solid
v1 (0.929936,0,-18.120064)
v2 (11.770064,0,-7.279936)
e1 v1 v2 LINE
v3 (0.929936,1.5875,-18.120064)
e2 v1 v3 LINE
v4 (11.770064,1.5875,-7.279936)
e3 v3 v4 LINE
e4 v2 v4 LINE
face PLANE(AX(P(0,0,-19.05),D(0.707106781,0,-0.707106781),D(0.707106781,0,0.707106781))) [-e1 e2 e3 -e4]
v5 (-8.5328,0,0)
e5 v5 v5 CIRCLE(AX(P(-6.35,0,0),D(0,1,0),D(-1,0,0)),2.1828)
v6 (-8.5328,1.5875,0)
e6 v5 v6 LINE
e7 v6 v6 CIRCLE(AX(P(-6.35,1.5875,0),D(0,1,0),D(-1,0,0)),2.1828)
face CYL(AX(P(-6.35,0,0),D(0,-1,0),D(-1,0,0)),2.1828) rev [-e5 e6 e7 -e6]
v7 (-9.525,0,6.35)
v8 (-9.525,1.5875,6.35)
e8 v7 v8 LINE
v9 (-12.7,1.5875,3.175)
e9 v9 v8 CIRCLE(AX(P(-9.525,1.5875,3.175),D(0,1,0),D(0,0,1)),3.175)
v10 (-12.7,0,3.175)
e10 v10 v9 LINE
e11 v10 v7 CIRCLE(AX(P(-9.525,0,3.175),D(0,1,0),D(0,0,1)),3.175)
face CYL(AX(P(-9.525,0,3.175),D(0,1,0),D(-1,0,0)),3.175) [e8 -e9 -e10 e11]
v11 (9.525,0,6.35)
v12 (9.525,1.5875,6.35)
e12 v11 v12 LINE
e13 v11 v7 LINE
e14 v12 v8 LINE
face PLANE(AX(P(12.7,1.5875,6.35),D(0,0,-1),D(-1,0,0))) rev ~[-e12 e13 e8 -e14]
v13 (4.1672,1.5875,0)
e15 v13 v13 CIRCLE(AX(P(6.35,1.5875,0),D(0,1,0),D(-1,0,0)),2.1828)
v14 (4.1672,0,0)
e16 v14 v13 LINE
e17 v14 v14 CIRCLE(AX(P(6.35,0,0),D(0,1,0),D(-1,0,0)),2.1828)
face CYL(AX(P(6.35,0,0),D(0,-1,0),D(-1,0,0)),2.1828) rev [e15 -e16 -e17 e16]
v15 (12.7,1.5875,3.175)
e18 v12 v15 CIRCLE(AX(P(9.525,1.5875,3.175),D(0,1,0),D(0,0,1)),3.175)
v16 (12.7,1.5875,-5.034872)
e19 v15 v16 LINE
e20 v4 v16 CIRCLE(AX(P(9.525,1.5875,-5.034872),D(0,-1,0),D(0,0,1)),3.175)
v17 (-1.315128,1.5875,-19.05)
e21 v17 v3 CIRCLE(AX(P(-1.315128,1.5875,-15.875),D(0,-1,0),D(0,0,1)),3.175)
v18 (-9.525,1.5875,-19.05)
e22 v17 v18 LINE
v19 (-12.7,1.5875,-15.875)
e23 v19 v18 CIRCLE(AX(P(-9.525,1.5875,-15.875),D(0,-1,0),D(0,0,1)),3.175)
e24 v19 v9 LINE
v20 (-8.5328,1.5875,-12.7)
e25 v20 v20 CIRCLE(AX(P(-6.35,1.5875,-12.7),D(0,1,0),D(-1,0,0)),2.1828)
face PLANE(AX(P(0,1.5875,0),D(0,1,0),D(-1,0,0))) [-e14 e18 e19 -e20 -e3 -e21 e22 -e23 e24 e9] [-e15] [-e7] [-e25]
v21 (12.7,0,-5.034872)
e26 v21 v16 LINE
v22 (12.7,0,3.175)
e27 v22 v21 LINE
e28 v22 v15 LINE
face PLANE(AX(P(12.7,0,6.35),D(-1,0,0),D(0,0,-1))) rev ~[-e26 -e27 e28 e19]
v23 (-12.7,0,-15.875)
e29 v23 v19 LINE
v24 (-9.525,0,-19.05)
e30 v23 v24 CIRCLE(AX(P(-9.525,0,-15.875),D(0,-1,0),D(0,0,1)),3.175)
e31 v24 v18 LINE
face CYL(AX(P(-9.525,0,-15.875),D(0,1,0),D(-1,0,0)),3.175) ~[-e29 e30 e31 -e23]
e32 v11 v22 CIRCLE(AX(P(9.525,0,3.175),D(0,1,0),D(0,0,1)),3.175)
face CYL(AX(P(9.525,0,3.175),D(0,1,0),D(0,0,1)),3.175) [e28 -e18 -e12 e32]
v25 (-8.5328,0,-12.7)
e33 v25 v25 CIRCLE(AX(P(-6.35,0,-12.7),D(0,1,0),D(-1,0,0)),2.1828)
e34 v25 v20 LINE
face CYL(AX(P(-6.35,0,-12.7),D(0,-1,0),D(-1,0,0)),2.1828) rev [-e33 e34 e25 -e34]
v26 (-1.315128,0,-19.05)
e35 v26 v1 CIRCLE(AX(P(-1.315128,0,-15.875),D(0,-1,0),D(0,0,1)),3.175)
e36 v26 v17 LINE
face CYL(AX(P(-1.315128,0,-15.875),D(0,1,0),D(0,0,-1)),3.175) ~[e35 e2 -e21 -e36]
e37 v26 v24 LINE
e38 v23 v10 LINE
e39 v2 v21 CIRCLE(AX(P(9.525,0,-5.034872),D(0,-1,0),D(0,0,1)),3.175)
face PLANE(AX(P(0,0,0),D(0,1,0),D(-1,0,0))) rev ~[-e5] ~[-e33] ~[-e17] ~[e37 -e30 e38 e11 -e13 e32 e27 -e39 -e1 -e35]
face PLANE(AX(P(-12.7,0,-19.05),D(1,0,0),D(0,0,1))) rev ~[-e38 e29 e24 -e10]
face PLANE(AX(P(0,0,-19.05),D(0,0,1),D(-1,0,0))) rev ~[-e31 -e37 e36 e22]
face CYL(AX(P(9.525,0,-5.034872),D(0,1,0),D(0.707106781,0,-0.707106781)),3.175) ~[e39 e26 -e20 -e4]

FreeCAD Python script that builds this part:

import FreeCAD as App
import Part
import Sketcher
Q = App.Units.Quantity


def edges_at(feature, points):
    """Names of the edges that pass closest to the given points."""
    edges = feature.Shape.Edges
    near = lambda p: min(range(len(edges)), key=lambda i: edges[i].distToShape(Part.Vertex(*p))[0])
    return sorted({f"Edge{near(p) + 1}" for p in points})


def add_polygon(sketch, points):
    """Adds a closed chain of lines whose ends are joined by coincident constraints."""
    first, n = sketch.GeometryCount, len(points)
    for a, b in zip(points, points[1:] + points[:1]):
        sketch.addGeometry(Part.LineSegment(App.Vector(*a, 0), App.Vector(*b, 0)), False)
    for i in range(n):
        sketch.addConstraint(Sketcher.Constraint("Coincident", first + i, 2, first + (i + 1) % n, 1))

doc = App.newDocument("Part")
body = doc.addObject("PartDesign::Body", "Body")

# Sketch on XZ plane
sketch1 = body.newObject("Sketcher::SketchObject", "Sketch")
sketch1.AttachmentSupport = (doc.getObject("XZ_Plane"), [""])
sketch1.MapMode = "FlatFace"
add_polygon(sketch1, [(-12.7, 19.1), (0, 19.1), (12.7, 6.3), (12.7, -6.3), (0, -19.1), (-12.7, -19.1)])  # lines 0-5
sketch1.addGeometry(Part.Circle(App.Vector(-6.3, -12.7, 0), App.Vector(0, 0, 1), 2.2), False)  # 6
sketch1.addGeometry(Part.Circle(App.Vector(-6.3, 0, 0), App.Vector(0, 0, 1), 2.2), False)  # 7
sketch1.addGeometry(Part.Circle(App.Vector(-6.3, 12.7, 0), App.Vector(0, 0, 1), 2.2), False)  # 8
sketch1.addGeometry(Part.Circle(App.Vector(6.3, 0, 0), App.Vector(0, 0, 1), 2.2), False)  # 9
sketch1.addConstraint([
    Sketcher.Constraint("Horizontal", 0),
    Sketcher.Constraint("Vertical", 2),
    Sketcher.Constraint("Horizontal", 4),
    Sketcher.Constraint("Vertical", 5),
    Sketcher.Constraint("Equal", 6, 7),
    Sketcher.Constraint("Equal", 7, 8),
    Sketcher.Constraint("Equal", 8, 9),
    Sketcher.Constraint("Symmetric", 7, 3, 9, 3, -1, 1),
    Sketcher.Constraint("Symmetric", 0, 2, 3, 2, -1, 1),
    Sketcher.Constraint("Symmetric", 6, 3, 8, 3, -1),
    Sketcher.Constraint("PointOnObject", 7, 3, -1),
    Sketcher.Constraint("PointOnObject", 0, 2, -2),
    Sketcher.Constraint("Perpendicular", 1, 3),
    Sketcher.Constraint("Vertical", 6, 3, 7, 3),
    Sketcher.Constraint("Equal", 4, 2),
    Sketcher.Constraint("Equal", 1, 3),
    Sketcher.Constraint("Diameter", 6, Q("0.171874 in")),
    Sketcher.Constraint("DistanceX", 0, 1, 0, 2, Q("0.5 in")),
    Sketcher.Constraint("DistanceY", 5, 1, 5, 2, Q("1.5 in")),
    Sketcher.Constraint("DistanceY", 6, 3, 8, 3, Q("1 in")),
    Sketcher.Constraint("DistanceX", 7, 3, 9, 3, Q("0.5 in")),
])
pad1 = body.newObject("PartDesign::Pad", "Pad")
pad1.Profile = sketch1
pad1.Length = Q("0.0625 in")
pad1.Reversed = True

# Sketch on XZ plane
sketch2 = body.newObject("Sketcher::SketchObject", "Sketch001")
sketch2.AttachmentSupport = (doc.getObject("XZ_Plane"), [""])
sketch2.MapMode = "FlatFace"
sketch2.AttachmentOffset = App.Placement(App.Vector(0, 0, -0.0625 * 25.4), App.Rotation())
add_polygon(sketch2, [(13, 20), (13, 6), (-19, 6), (-19, 20)])  # lines 0-3
sketch2.addConstraint([
    Sketcher.Constraint("Vertical", 0),
    Sketcher.Constraint("Horizontal", 1),
    Sketcher.Constraint("Vertical", 2),
    Sketcher.Constraint("Horizontal", 3),
    Sketcher.Constraint("DistanceX", -1, 1, 0, 2, Q("0.5 in")),
    Sketcher.Constraint("DistanceY", -1, 1, 0, 2, Q("0.25 in")),
    Sketcher.Constraint("DistanceX", 1, 2, 1, 1, 31.6593),
    Sketcher.Constraint("DistanceY", 0, 2, 0, 1, 13.836),
])
pocket1 = body.newObject("PartDesign::Pocket", "Pocket")
pocket1.Profile = sketch2
pocket1.Length = Q("1 in")
pocket1.Reversed = True
doc.recompute()

fillet = body.newObject("PartDesign::Fillet", "Fillet")
fillet.Base = (pocket1, edges_at(pocket1, [
    (12.7, 0.794, 6.35),
    (-12.7, 0.794, 6.35),
    (12.7, 0.794, -6.35),
    (0, 0.794, -19.05),
    (-12.7, 0.794, -19.05),
]))
fillet.Radius = Q("0.125 in")

doc.recompute()
